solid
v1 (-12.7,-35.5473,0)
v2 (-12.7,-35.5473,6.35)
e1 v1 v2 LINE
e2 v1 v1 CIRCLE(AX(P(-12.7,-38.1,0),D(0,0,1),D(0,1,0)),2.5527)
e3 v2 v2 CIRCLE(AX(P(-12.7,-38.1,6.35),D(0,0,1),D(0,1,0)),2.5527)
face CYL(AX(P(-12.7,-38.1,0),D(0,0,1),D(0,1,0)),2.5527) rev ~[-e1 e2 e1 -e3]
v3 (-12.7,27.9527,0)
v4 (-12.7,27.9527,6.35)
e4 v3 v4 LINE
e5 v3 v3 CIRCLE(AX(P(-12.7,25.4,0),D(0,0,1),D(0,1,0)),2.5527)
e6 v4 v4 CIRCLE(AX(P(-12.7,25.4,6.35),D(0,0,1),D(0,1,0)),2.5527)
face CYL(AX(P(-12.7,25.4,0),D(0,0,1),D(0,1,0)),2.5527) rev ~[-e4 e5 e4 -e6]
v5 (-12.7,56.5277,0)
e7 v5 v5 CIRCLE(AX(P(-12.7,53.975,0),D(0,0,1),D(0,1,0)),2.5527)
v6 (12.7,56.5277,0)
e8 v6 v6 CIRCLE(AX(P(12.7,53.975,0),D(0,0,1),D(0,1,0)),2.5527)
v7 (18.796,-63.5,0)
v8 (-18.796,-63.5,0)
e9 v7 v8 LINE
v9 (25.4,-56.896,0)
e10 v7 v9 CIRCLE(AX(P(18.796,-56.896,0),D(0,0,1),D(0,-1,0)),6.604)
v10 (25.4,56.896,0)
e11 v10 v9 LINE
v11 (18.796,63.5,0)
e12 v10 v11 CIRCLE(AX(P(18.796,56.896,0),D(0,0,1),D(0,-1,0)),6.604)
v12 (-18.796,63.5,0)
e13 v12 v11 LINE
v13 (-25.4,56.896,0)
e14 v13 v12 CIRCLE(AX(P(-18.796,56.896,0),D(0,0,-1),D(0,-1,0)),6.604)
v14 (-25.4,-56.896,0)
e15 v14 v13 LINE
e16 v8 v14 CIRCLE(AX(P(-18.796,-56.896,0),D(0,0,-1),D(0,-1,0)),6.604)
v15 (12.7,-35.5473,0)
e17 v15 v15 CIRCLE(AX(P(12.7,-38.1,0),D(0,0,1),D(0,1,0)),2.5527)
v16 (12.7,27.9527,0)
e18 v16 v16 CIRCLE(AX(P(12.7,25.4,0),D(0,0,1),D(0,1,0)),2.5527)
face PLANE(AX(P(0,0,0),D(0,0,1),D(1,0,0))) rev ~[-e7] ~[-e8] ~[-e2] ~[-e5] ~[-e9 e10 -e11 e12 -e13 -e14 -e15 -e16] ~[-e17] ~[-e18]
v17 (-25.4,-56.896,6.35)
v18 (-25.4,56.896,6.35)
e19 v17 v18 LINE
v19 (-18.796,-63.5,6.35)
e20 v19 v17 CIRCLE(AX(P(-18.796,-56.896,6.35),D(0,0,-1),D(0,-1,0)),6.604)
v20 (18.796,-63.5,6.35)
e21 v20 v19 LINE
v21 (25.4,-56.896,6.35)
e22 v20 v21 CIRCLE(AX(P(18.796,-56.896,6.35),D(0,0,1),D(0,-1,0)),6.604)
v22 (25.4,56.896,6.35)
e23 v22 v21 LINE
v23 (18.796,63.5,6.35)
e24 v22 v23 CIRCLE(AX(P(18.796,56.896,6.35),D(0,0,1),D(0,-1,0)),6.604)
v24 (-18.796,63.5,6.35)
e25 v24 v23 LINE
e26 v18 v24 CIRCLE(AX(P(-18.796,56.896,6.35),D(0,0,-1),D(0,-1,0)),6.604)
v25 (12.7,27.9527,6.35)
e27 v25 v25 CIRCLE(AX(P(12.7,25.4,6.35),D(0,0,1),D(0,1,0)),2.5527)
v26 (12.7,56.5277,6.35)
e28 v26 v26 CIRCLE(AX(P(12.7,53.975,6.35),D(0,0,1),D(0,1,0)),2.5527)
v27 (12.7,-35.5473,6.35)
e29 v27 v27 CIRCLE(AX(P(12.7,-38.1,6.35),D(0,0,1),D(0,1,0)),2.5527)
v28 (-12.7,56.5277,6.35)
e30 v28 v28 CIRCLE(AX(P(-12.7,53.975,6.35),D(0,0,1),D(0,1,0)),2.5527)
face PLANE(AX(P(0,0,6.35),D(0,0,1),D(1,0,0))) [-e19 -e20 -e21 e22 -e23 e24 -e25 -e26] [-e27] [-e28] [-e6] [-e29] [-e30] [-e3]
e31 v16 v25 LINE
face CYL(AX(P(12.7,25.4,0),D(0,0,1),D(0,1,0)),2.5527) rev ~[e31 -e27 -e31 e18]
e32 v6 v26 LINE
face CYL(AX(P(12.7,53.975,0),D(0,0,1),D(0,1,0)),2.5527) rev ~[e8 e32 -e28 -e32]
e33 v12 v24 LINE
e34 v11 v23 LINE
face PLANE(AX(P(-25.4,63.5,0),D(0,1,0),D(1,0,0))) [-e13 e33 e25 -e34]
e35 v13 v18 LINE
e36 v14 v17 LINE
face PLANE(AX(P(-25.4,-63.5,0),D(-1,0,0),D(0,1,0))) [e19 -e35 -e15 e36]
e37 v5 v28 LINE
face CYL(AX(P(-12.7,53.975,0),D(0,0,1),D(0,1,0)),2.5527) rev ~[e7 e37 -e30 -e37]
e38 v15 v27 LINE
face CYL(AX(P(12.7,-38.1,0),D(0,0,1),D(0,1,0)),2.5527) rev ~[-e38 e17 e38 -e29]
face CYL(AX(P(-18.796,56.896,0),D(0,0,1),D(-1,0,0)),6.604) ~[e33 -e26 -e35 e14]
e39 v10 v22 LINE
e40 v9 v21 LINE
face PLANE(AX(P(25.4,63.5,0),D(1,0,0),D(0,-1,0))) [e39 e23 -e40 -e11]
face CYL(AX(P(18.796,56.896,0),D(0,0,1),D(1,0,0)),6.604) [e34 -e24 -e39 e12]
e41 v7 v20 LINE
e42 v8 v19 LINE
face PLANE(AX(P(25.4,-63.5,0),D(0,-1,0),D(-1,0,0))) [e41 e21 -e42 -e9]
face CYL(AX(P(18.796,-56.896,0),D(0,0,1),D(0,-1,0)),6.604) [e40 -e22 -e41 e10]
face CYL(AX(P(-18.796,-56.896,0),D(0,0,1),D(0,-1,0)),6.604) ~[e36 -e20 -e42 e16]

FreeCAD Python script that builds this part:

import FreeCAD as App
import Part
import Sketcher

V = App.Vector
Q = App.Units.Quantity


def edges_at(feature, points):
    """Names of the edges that pass closest to the given points."""
    edges = feature.Shape.Edges
    near = lambda p: min(range(len(edges)), key=lambda i: edges[i].distToShape(Part.Vertex(*p))[0])
    return sorted({f"Edge{near(p) + 1}" for p in points})


def add_polygon(sketch, points):
    """Adds a closed chain of lines whose ends are joined by coincident constraints."""
    first, n = sketch.GeometryCount, len(points)
    for a, b in zip(points, points[1:] + points[:1]):
        sketch.addGeometry(Part.LineSegment(App.Vector(*a, 0), App.Vector(*b, 0)), False)
    for i in range(n):
        sketch.addConstraint(Sketcher.Constraint("Coincident", first + i, 2, first + (i + 1) % n, 1))

doc = App.newDocument("Part")
body = doc.addObject("PartDesign::Body", "Body")

# Sketch on XY plane
sketch1 = body.newObject("Sketcher::SketchObject", "Sketch")
sketch1.AttachmentSupport = (doc.getObject("XY_Plane"), [""])
sketch1.MapMode = "FlatFace"
add_polygon(sketch1, [(-25, -64), (25, -64), (25, 64), (-25, 64)])  # lines 0-3
sketch1.addConstraint([
    Sketcher.Constraint("Horizontal", 0),
    Sketcher.Constraint("Vertical", 1),
    Sketcher.Constraint("Horizontal", 2),
    Sketcher.Constraint("Vertical", 3),
    Sketcher.Constraint("Symmetric", 0, 2, 2, 2, -1, 1),
    Sketcher.Constraint("DistanceX", 0, 1, 0, 2, Q("2 in")),
    Sketcher.Constraint("DistanceY", 1, 1, 1, 2, Q("5 in")),
])
pad1 = body.newObject("PartDesign::Pad", "Pad")
pad1.Profile = sketch1
pad1.Length = Q("0.25 in")

# Sketch on XY plane
sketch2 = body.newObject("Sketcher::SketchObject", "Sketch001")
sketch2.AttachmentSupport = (doc.getObject("XY_Plane"), [""])
sketch2.MapMode = "FlatFace"
sketch2.addGeometry([
    Part.Circle(V(-12.7, 54, 0), V(0, 0, 1), 2.6),  # 0
    Part.Circle(V(12.7, 54, 0), V(0, 0, 1), 2.6),  # 1
    Part.Circle(V(-12.7, 25.4, 0), V(0, 0, 1), 2.6),  # 2
    Part.Circle(V(12.7, 25.4, 0), V(0, 0, 1), 2.6),  # 3
    Part.Circle(V(12.7, -38.1, 0), V(0, 0, 1), 2.6),  # 4
    Part.Circle(V(-12.7, -38.1, 0), V(0, 0, 1), 2.6),  # 5
], False)
sketch2.addConstraint([
    Sketcher.Constraint("Equal", 0, 1),
    Sketcher.Constraint("Equal", 1, 2),
    Sketcher.Constraint("Equal", 2, 3),
    Sketcher.Constraint("Equal", 3, 4),
    Sketcher.Constraint("Equal", 4, 5),
    Sketcher.Constraint("Symmetric", 0, 3, 1, 3, -2),
    Sketcher.Constraint("Symmetric", 2, 3, 3, 3, -2),
    Sketcher.Constraint("Symmetric", 4, 3, 5, 3, -2),
    Sketcher.Constraint("Vertical", 0, 3, 2, 3),
    Sketcher.Constraint("Vertical", 3, 3, 4, 3),
    Sketcher.Constraint("Diameter", 0, Q("0.201 in")),
    Sketcher.Constraint("DistanceY", -1, 1, 2, 3, Q("1 in")),
    Sketcher.Constraint("DistanceX", 0, 3, 1, 3, Q("1 in")),
    Sketcher.Constraint("DistanceY", 4, 3, -1, 1, Q("1.5 in")),
    Sketcher.Constraint("DistanceY", -1, 1, 0, 3, Q("2.125 in")),
])
doc.recompute()
hole = body.newObject("PartDesign::Hole", "Hole")
hole.Profile = sketch2
hole.ThreadType = "None"
hole.Diameter = Q("0.201 in")
hole.DepthType = "ThroughAll"
hole.Reversed = True
doc.recompute()

fillet = body.newObject("PartDesign::Fillet", "Fillet")
fillet.Base = (hole, edges_at(hole, [
    (25.4, 63.5, 3.175),
    (-25.4, 63.5, 3.175),
    (25.4, -63.5, 3.175),
    (-25.4, -63.5, 3.175),
]))
fillet.Radius = Q("0.26 in")

doc.recompute()
